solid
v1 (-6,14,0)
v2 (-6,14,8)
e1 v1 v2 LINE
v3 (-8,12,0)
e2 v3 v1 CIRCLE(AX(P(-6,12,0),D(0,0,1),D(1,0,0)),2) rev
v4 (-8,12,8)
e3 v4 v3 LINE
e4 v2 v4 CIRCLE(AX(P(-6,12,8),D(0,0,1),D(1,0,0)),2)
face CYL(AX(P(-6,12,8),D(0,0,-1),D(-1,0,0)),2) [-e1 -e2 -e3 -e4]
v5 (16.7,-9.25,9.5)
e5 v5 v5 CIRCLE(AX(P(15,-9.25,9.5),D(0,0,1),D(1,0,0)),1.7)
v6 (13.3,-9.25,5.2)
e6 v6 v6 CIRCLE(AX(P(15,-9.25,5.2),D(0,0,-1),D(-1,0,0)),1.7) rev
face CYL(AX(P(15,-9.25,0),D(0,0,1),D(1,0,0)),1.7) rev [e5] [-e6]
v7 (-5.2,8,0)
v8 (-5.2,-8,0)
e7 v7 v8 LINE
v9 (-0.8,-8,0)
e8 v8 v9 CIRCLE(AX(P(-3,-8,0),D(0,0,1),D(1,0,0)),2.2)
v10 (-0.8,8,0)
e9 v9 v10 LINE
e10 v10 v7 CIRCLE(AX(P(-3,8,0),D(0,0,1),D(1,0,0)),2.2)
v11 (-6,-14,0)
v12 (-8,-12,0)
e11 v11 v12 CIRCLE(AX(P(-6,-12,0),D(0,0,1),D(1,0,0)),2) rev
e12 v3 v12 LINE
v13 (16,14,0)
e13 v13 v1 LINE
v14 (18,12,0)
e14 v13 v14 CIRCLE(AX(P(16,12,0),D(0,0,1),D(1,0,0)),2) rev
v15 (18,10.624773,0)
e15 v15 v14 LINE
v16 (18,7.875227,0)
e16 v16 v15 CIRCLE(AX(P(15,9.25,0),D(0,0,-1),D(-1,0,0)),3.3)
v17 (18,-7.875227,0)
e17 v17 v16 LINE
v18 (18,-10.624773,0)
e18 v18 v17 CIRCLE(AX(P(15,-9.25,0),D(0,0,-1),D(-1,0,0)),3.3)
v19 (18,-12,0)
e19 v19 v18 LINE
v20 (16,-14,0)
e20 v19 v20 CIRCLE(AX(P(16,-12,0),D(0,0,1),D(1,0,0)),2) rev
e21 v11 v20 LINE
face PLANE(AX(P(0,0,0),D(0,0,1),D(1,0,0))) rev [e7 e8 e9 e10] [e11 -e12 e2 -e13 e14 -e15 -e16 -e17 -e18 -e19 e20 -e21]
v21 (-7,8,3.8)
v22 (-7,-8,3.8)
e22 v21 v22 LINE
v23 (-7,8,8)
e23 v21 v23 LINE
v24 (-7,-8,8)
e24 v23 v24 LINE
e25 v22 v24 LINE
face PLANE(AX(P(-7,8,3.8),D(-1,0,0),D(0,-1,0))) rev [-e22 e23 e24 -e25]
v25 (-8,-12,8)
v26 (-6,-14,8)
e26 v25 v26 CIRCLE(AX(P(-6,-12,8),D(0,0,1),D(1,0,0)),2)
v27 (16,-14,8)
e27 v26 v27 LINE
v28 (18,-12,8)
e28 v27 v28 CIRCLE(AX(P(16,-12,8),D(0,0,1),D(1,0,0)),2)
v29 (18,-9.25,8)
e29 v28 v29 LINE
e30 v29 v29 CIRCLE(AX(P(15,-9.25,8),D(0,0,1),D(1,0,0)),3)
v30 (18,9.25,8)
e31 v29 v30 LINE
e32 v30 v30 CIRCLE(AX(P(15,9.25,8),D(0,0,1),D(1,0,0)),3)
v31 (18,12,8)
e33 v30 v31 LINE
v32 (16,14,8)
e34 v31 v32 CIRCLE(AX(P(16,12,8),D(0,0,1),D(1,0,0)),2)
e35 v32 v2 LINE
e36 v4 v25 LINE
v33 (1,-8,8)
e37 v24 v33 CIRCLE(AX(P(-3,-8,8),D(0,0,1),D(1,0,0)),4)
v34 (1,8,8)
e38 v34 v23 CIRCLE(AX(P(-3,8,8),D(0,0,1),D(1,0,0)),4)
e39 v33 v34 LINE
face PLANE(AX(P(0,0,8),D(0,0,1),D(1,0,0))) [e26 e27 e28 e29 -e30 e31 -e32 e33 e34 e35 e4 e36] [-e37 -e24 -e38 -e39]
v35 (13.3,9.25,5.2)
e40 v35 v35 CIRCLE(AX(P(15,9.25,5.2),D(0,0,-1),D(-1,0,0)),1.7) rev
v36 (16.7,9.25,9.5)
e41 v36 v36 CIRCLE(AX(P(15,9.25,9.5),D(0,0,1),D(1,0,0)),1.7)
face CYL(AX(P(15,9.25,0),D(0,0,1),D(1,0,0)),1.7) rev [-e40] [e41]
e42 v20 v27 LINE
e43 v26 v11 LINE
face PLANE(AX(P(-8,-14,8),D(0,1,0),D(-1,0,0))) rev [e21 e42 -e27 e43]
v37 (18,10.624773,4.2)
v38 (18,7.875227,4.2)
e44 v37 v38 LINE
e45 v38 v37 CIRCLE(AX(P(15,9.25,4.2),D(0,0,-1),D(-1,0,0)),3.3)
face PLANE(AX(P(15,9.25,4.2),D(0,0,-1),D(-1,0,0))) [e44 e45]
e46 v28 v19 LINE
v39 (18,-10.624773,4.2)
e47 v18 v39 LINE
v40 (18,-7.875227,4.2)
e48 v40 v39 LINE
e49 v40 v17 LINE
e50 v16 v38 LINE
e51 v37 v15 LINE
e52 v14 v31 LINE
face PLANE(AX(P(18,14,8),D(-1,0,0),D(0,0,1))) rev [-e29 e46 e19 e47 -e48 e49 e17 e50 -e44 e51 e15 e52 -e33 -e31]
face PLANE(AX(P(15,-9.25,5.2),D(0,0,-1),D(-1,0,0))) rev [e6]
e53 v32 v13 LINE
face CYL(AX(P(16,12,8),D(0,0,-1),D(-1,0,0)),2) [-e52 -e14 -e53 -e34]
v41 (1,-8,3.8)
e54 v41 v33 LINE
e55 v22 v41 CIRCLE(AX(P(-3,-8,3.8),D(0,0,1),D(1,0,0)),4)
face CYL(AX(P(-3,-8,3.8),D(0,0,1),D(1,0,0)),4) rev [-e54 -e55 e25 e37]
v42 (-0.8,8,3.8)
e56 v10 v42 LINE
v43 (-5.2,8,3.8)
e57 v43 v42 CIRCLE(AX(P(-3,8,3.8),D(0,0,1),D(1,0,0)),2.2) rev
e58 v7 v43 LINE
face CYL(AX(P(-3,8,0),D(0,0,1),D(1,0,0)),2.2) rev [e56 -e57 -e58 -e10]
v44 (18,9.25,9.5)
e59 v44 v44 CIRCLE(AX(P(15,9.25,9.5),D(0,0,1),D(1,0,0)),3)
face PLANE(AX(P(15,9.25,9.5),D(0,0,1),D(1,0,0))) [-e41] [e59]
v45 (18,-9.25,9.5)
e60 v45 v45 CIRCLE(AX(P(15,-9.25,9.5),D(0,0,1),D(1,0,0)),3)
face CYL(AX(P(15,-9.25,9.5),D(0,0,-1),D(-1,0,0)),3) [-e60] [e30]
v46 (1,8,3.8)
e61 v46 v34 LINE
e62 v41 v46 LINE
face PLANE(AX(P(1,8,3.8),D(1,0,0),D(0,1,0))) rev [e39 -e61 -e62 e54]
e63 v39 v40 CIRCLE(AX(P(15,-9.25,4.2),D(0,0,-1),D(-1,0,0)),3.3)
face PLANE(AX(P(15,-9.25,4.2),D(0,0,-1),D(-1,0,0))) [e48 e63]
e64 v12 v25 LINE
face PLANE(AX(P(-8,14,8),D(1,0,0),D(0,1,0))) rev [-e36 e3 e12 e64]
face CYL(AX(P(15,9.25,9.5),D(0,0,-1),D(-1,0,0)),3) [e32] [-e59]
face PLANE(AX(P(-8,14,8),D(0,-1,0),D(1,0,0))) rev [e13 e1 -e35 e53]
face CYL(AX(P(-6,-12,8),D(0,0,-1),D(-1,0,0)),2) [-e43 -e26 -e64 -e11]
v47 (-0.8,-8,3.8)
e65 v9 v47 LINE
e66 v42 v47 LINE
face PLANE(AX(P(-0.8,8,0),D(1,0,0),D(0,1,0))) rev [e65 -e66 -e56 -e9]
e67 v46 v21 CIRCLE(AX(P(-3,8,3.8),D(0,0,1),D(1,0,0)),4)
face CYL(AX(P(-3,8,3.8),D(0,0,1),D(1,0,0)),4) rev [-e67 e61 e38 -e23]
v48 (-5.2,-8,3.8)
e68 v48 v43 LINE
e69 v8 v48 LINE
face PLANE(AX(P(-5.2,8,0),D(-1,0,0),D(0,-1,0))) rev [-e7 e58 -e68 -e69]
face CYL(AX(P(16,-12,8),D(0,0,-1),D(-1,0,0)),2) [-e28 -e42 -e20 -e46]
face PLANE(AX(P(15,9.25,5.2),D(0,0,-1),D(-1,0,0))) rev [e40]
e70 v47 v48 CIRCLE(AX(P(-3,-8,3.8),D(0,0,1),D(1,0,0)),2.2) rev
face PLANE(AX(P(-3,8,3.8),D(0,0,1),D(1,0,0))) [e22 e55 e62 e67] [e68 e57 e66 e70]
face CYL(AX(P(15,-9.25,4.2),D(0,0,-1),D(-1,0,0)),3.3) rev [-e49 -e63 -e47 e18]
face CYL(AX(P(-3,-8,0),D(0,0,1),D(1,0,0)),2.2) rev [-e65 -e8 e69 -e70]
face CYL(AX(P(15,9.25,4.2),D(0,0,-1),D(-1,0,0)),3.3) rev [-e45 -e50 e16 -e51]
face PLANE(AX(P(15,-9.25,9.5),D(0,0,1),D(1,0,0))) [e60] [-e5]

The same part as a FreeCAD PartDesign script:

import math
import FreeCAD as App
import Part
import Sketcher
Q = App.Units.Quantity


def edges_at(feature, points):
    """Names of the edges that pass closest to the given points."""
    edges = feature.Shape.Edges
    near = lambda p: min(range(len(edges)), key=lambda i: edges[i].distToShape(Part.Vertex(*p))[0])
    return sorted({f"Edge{near(p) + 1}" for p in points})


def add_polygon(sketch, points):
    """Adds a closed chain of lines whose ends are joined by coincident constraints."""
    first, n = sketch.GeometryCount, len(points)
    for a, b in zip(points, points[1:] + points[:1]):
        sketch.addGeometry(Part.LineSegment(App.Vector(*a, 0), App.Vector(*b, 0)), False)
    for i in range(n):
        sketch.addConstraint(Sketcher.Constraint("Coincident", first + i, 2, first + (i + 1) % n, 1))

doc = App.newDocument("Part")
body = doc.addObject("PartDesign::Body", "Body")

# Sketch on XY plane
sketch1 = body.newObject("Sketcher::SketchObject", "Sketch")
sketch1.AttachmentSupport = (doc.getObject("XY_Plane"), [""])
sketch1.MapMode = "FlatFace"
add_polygon(sketch1, [(-8, 14), (-8, -14), (18, -14), (18, 14)])  # lines 0-3
sketch1.addConstraint([
    Sketcher.Constraint("Vertical", 0),
    Sketcher.Constraint("Horizontal", 1),
    Sketcher.Constraint("Vertical", 2),
    Sketcher.Constraint("Horizontal", 3),
    Sketcher.Constraint("DistanceX", 1, 1, 1, 2, Q("26 mm")),
    Sketcher.Constraint("DistanceY", 0, 2, 0, 1, Q("28 mm")),
    Sketcher.Constraint("DistanceX", 0, 2, -1, 1, Q("8 mm")),
    Sketcher.Constraint("DistanceY", 0, 2, -1, 1, Q("14 mm")),
])
pad1 = body.newObject("PartDesign::Pad", "Pad")
pad1.Profile = sketch1
pad1.Length = 8

# Sketch on XY plane
sketch2 = body.newObject("Sketcher::SketchObject", "Sketch001")
sketch2.AttachmentSupport = (doc.getObject("XY_Plane"), [""])
sketch2.MapMode = "FlatFace"
sketch2.AttachmentOffset = App.Placement(App.Vector(0, 0, 8), App.Rotation())
sketch2.addGeometry([
    Part.LineSegment(App.Vector(-0.8, -8, 0), App.Vector(-0.8, 8, 0)),
    Part.ArcOfCircle(Part.Circle(App.Vector(-3, 8, 0), App.Vector(0, 0, 1), 2.2), math.radians(0), math.radians(180)),
    Part.LineSegment(App.Vector(-5.2, 8, 0), App.Vector(-5.2, -8, 0)),
    Part.ArcOfCircle(Part.Circle(App.Vector(-3, -8, 0), App.Vector(0, 0, 1), 2.2), math.radians(180), math.radians(360)),
], False)
sketch2.addConstraint([
    Sketcher.Constraint("Tangent", 0, 2, 1, 1),
    Sketcher.Constraint("Tangent", 1, 2, 2, 1),
    Sketcher.Constraint("Tangent", 2, 2, 3, 1),
    Sketcher.Constraint("Tangent", 3, 2, 0, 1),
    Sketcher.Constraint("Vertical", 0),
    Sketcher.Constraint("Vertical", 2),
    Sketcher.Constraint("Radius", 1, Q("2.2 mm")),
    Sketcher.Constraint("DistanceY", 0, 1, 0, 2, Q("16 mm")),
    Sketcher.Constraint("DistanceX", 1, 3, -1, 1, Q("3 mm")),
    Sketcher.Constraint("DistanceY", -1, 1, 1, 3, Q("8 mm")),
])
pocket1 = body.newObject("PartDesign::Pocket", "Pocket")
pocket1.Profile = sketch2
pocket1.Type = "ThroughAll"

# Sketch on XY plane
sketch3 = body.newObject("Sketcher::SketchObject", "Sketch002")
sketch3.AttachmentSupport = (doc.getObject("XY_Plane"), [""])
sketch3.MapMode = "FlatFace"
sketch3.AttachmentOffset = App.Placement(App.Vector(0, 0, 8), App.Rotation())
sketch3.addGeometry([
    Part.LineSegment(App.Vector(1, -8, 0), App.Vector(1, 8, 0)),
    Part.ArcOfCircle(Part.Circle(App.Vector(-3, 8, 0), App.Vector(0, 0, 1), 4), math.radians(0), math.radians(180)),
    Part.LineSegment(App.Vector(-7, 8, 0), App.Vector(-7, -8, 0)),
    Part.ArcOfCircle(Part.Circle(App.Vector(-3, -8, 0), App.Vector(0, 0, 1), 4), math.radians(180), math.radians(360)),
], False)
sketch3.addConstraint([
    Sketcher.Constraint("Tangent", 0, 2, 1, 1),
    Sketcher.Constraint("Tangent", 1, 2, 2, 1),
    Sketcher.Constraint("Tangent", 2, 2, 3, 1),
    Sketcher.Constraint("Tangent", 3, 2, 0, 1),
    Sketcher.Constraint("Vertical", 0),
    Sketcher.Constraint("Vertical", 2),
    Sketcher.Constraint("Radius", 1, Q("4 mm")),
    Sketcher.Constraint("DistanceY", 0, 1, 0, 2, Q("16 mm")),
    Sketcher.Constraint("DistanceX", 1, 3, -1, 1, Q("3 mm")),
    Sketcher.Constraint("DistanceY", -1, 1, 1, 3, Q("8 mm")),
])
pocket2 = body.newObject("PartDesign::Pocket", "Pocket001")
pocket2.Profile = sketch3
pocket2.Length = 4.2

# Sketch on XY plane
sketch4 = body.newObject("Sketcher::SketchObject", "Sketch003")
sketch4.AttachmentSupport = (doc.getObject("XY_Plane"), [""])
sketch4.MapMode = "FlatFace"
sketch4.AttachmentOffset = App.Placement(App.Vector(0, 0, 8), App.Rotation())
sketch4.addGeometry([
    Part.Circle(App.Vector(15, 9.2, 0), App.Vector(0, 0, 1), 1.7),
    Part.Circle(App.Vector(15, -9.2, 0), App.Vector(0, 0, 1), 1.7),
], False)
sketch4.addConstraint([
    Sketcher.Constraint("Equal", 0, 1),
    Sketcher.Constraint("Symmetric", 0, 3, 1, 3, -1),
    Sketcher.Constraint("Diameter", 0, Q("3.4 mm")),
    Sketcher.Constraint("DistanceX", -1, 1, 0, 3, Q("15 mm")),
    Sketcher.Constraint("DistanceY", 1, 3, 0, 3, Q("18.5 mm")),
])
pocket3 = body.newObject("PartDesign::Pocket", "Pocket002")
pocket3.Profile = sketch4
pocket3.Type = "ThroughAll"

# Sketch on XY plane
sketch5 = body.newObject("Sketcher::SketchObject", "Sketch004")
sketch5.AttachmentSupport = (doc.getObject("XY_Plane"), [""])
sketch5.MapMode = "FlatFace"
sketch5.addGeometry([
    Part.Circle(App.Vector(15, 9.2, 0), App.Vector(0, 0, 1), 3.3),
    Part.Circle(App.Vector(15, -9.2, 0), App.Vector(0, 0, 1), 3.3),
], False)
sketch5.addConstraint([
    Sketcher.Constraint("Equal", 0, 1),
    Sketcher.Constraint("Symmetric", 0, 3, 1, 3, -1),
    Sketcher.Constraint("Diameter", 0, Q("6.6 mm")),
    Sketcher.Constraint("DistanceX", -1, 1, 0, 3, Q("15 mm")),
    Sketcher.Constraint("DistanceY", 1, 3, 0, 3, Q("18.5 mm")),
])
pocket4 = body.newObject("PartDesign::Pocket", "Pocket003")
pocket4.Profile = sketch5
pocket4.Length = 4.2
pocket4.Reversed = True

# Sketch on XY plane
sketch6 = body.newObject("Sketcher::SketchObject", "Sketch005")
sketch6.AttachmentSupport = (doc.getObject("XY_Plane"), [""])
sketch6.MapMode = "FlatFace"
sketch6.AttachmentOffset = App.Placement(App.Vector(0, 0, 4.2), App.Rotation())
sketch6.addGeometry([
    Part.Circle(App.Vector(15, 9.2, 0), App.Vector(0, 0, 1), 1.7),
    Part.Circle(App.Vector(15, -9.2, 0), App.Vector(0, 0, 1), 1.7),
], False)
sketch6.addConstraint([
    Sketcher.Constraint("Equal", 0, 1),
    Sketcher.Constraint("Symmetric", 0, 3, 1, 3, -1),
    Sketcher.Constraint("Diameter", 0, Q("3.4 mm")),
    Sketcher.Constraint("DistanceX", -1, 1, 0, 3, Q("15 mm")),
    Sketcher.Constraint("DistanceY", 1, 3, 0, 3, Q("18.5 mm")),
])
pad2 = body.newObject("PartDesign::Pad", "Pad001")
pad2.Profile = sketch6
pad2.Length = 1

# Sketch on XY plane
sketch7 = body.newObject("Sketcher::SketchObject", "Sketch006")
sketch7.AttachmentSupport = (doc.getObject("XY_Plane"), [""])
sketch7.MapMode = "FlatFace"
sketch7.AttachmentOffset = App.Placement(App.Vector(0, 0, 8), App.Rotation())
sketch7.addGeometry([
    Part.Circle(App.Vector(15, -9.2, 0), App.Vector(0, 0, 1), 3),
    Part.Circle(App.Vector(15, -9.2, 0), App.Vector(0, 0, 1), 1.7),
    Part.Circle(App.Vector(15, 9.2, 0), App.Vector(0, 0, 1), 3),
    Part.Circle(App.Vector(15, 9.2, 0), App.Vector(0, 0, 1), 1.7),
], False)
sketch7.addConstraint([
    Sketcher.Constraint("Coincident", 1, 3, 0, 3),
    Sketcher.Constraint("Coincident", 3, 3, 2, 3),
    Sketcher.Constraint("Equal", 0, 2),
    Sketcher.Constraint("Equal", 1, 3),
    Sketcher.Constraint("Symmetric", 0, 3, 2, 3, -1),
    Sketcher.Constraint("Diameter", 0, Q("6 mm")),
    Sketcher.Constraint("Diameter", 1, Q("3.4 mm")),
    Sketcher.Constraint("DistanceX", -1, 1, 0, 3, Q("15 mm")),
    Sketcher.Constraint("DistanceY", 0, 3, 2, 3, Q("18.5 mm")),
])
pad3 = body.newObject("PartDesign::Pad", "Pad002")
pad3.Profile = sketch7
pad3.Length = 1.5
doc.recompute()

fillet = body.newObject("PartDesign::Fillet", "Fillet")
fillet.Base = (pad3, edges_at(pad3, [
    (-8, 14, 4),
    (18, 14, 4),
    (18, -14, 4),
    (-8, -14, 4),
]))
fillet.Radius = 2

doc.recompute()
